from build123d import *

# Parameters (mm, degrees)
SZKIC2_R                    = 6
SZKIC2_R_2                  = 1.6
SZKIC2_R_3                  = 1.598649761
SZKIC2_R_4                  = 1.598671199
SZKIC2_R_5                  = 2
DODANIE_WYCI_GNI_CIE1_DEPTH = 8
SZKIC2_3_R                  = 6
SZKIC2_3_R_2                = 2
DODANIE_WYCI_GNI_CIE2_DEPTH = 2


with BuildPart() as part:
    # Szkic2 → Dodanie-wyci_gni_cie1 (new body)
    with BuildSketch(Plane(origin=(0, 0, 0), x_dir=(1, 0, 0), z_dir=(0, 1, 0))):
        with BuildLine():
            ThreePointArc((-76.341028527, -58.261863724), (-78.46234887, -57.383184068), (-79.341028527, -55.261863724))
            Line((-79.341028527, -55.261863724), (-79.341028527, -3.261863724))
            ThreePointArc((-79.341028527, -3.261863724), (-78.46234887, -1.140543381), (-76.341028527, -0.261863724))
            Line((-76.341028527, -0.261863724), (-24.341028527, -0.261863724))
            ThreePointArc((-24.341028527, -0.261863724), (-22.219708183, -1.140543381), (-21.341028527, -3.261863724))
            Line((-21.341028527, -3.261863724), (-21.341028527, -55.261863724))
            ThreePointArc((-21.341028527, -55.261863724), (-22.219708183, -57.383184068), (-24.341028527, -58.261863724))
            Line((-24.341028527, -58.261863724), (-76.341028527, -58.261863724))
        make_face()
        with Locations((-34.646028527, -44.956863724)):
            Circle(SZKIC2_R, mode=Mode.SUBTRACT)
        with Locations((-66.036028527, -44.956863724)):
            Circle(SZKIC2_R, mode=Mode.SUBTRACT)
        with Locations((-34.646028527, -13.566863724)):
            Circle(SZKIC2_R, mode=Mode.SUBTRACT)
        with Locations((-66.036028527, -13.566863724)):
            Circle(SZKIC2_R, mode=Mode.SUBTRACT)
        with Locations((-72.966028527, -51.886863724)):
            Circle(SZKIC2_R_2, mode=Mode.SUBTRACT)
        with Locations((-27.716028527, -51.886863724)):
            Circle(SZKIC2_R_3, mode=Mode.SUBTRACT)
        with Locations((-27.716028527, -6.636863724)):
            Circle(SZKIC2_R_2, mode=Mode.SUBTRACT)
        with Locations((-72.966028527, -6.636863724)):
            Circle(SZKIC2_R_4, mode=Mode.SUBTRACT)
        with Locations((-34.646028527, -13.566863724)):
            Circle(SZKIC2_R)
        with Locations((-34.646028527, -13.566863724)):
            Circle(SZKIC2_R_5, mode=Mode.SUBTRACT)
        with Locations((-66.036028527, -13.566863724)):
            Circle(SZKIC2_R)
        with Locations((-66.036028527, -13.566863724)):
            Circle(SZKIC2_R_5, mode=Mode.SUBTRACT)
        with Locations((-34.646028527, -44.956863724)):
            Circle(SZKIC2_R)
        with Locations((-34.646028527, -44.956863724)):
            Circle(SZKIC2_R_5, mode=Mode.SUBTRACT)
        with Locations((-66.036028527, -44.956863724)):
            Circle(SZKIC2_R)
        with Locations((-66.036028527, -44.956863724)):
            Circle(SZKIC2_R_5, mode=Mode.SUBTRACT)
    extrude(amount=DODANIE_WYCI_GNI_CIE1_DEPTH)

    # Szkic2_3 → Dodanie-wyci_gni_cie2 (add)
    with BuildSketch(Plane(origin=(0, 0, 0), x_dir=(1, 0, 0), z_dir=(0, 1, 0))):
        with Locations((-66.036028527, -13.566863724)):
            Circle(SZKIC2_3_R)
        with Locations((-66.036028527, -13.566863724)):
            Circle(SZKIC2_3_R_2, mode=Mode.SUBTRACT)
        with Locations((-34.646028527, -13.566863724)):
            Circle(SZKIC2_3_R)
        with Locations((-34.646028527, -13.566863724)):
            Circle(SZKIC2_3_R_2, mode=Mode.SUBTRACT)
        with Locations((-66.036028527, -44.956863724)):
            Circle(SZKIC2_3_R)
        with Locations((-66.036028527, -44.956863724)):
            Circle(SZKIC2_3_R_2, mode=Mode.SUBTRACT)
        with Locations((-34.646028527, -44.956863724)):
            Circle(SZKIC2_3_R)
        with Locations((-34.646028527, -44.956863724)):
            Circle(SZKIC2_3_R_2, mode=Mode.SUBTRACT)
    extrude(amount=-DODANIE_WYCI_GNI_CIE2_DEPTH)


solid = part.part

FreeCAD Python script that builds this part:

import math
import FreeCAD as App
import Part
import Sketcher
from FreeCAD import Vector
Q = App.Units.Quantity

doc = App.newDocument("Part")
body = doc.addObject("PartDesign::Body", "Body")

# Sketch on XZ plane
sketch1 = doc.addObject("Sketcher::SketchObject", "Sketch")
body.addObject(sketch1)
sketch1.AttachmentSupport = (doc.XZ_Plane, [""])
sketch1.MapMode = "FlatFace"
sketch1.addGeometry(Part.ArcOfCircle(Part.Circle(Vector(-76.3, 55.3, 0), Vector(0, 0, 1), 3), math.radians(90), math.radians(180)), False)
sketch1.addGeometry(Part.LineSegment(Vector(-76.3, 58.3, 0), Vector(-24.3, 58.3, 0)), False)
sketch1.addGeometry(Part.ArcOfCircle(Part.Circle(Vector(-24.3, 55.3, 0), Vector(0, 0, 1), 3), math.radians(0), math.radians(90)), False)
sketch1.addGeometry(Part.LineSegment(Vector(-21.3, 55.3, 0), Vector(-21.3, 3.3, 0)), False)
sketch1.addGeometry(Part.ArcOfCircle(Part.Circle(Vector(-24.3, 3.3, 0), Vector(0, 0, 1), 3), math.radians(-90), math.radians(0)), False)
sketch1.addGeometry(Part.LineSegment(Vector(-24.3, 0.3, 0), Vector(-76.3, 0.3, 0)), False)
sketch1.addGeometry(Part.ArcOfCircle(Part.Circle(Vector(-76.3, 3.3, 0), Vector(0, 0, 1), 3), math.radians(-180), math.radians(-90)), False)
sketch1.addGeometry(Part.LineSegment(Vector(-79.3, 3.3, 0), Vector(-79.3, 55.3, 0)), False)
sketch1.addGeometry(Part.Circle(Vector(-27.7, 51.9, 0), Vector(0, 0, 1), 1.6), False)
sketch1.addGeometry(Part.Circle(Vector(-34.6, 45, 0), Vector(0, 0, 1), 2), False)
sketch1.addGeometry(Part.Circle(Vector(-73, 51.9, 0), Vector(0, 0, 1), 1.6), False)
sketch1.addGeometry(Part.Circle(Vector(-66, 45, 0), Vector(0, 0, 1), 2), False)
sketch1.addGeometry(Part.Circle(Vector(-34.6, 13.6, 0), Vector(0, 0, 1), 2), False)
sketch1.addGeometry(Part.Circle(Vector(-27.7, 6.6, 0), Vector(0, 0, 1), 1.6), False)
sketch1.addGeometry(Part.Circle(Vector(-66, 13.6, 0), Vector(0, 0, 1), 2), False)
sketch1.addGeometry(Part.Circle(Vector(-73, 6.6, 0), Vector(0, 0, 1), 1.6), False)
sketch1.addConstraint(Sketcher.Constraint("Tangent", 0, 1, 1, 1))
sketch1.addConstraint(Sketcher.Constraint("Tangent", 1, 2, 2, 2))
sketch1.addConstraint(Sketcher.Constraint("Tangent", 2, 1, 3, 1))
sketch1.addConstraint(Sketcher.Constraint("Tangent", 3, 2, 4, 2))
sketch1.addConstraint(Sketcher.Constraint("Tangent", 4, 1, 5, 1))
sketch1.addConstraint(Sketcher.Constraint("Tangent", 5, 2, 6, 2))
sketch1.addConstraint(Sketcher.Constraint("Tangent", 6, 1, 7, 1))
sketch1.addConstraint(Sketcher.Constraint("Tangent", 7, 2, 0, 2))
sketch1.addConstraint(Sketcher.Constraint("Horizontal", 1))
sketch1.addConstraint(Sketcher.Constraint("Vertical", 3))
sketch1.addConstraint(Sketcher.Constraint("Horizontal", 5))
sketch1.addConstraint(Sketcher.Constraint("Vertical", 7))
sketch1.addConstraint(Sketcher.Constraint("Equal", 0, 2))
sketch1.addConstraint(Sketcher.Constraint("Equal", 2, 4))
sketch1.addConstraint(Sketcher.Constraint("Equal", 4, 6))
sketch1.addConstraint(Sketcher.Constraint("Equal", 9, 11))
sketch1.addConstraint(Sketcher.Constraint("Equal", 11, 12))
sketch1.addConstraint(Sketcher.Constraint("Equal", 10, 13))
sketch1.addConstraint(Sketcher.Constraint("Equal", 12, 14))
sketch1.addConstraint(Sketcher.Constraint("Horizontal", 8, 3, 10, 3))
sketch1.addConstraint(Sketcher.Constraint("Horizontal", 9, 3, 11, 3))
sketch1.addConstraint(Sketcher.Constraint("Horizontal", 12, 3, 14, 3))
sketch1.addConstraint(Sketcher.Constraint("Horizontal", 13, 3, 15, 3))
sketch1.addConstraint(Sketcher.Constraint("Vertical", 9, 3, 12, 3))
sketch1.addConstraint(Sketcher.Constraint("Vertical", 8, 3, 13, 3))
sketch1.addConstraint(Sketcher.Constraint("Vertical", 11, 3, 14, 3))
sketch1.addConstraint(Sketcher.Constraint("Vertical", 10, 3, 15, 3))
sketch1.addConstraint(Sketcher.Constraint("Equal", 5, 3))
sketch1.addConstraint(Sketcher.Constraint("Diameter", 9, Q("4 mm")))
sketch1.addConstraint(Sketcher.Constraint("Radius", 0, Q("3 mm")))
sketch1.addConstraint(Sketcher.Constraint("Diameter", 10, Q("3.2 mm")))
sketch1.addConstraint(Sketcher.Constraint("DistanceX", 1, 1, 1, 2, Q("52 mm")))
sketch1.addConstraint(Sketcher.Constraint("Diameter", 8, Q("3.1973 mm")))
sketch1.addConstraint(Sketcher.Constraint("DistanceX", 9, 3, 8, 3, Q("6.93 mm")))
sketch1.addConstraint(Sketcher.Constraint("DistanceY", 9, 3, 8, 3, Q("6.93 mm")))
sketch1.addConstraint(Sketcher.Constraint("DistanceX", 10, 3, 9, 3, Q("38.32 mm")))
sketch1.addConstraint(Sketcher.Constraint("DistanceX", 10, 3, 11, 3, Q("6.93 mm")))
sketch1.addConstraint(Sketcher.Constraint("DistanceY", 12, 3, 9, 3, Q("31.39 mm")))
sketch1.addConstraint(Sketcher.Constraint("DistanceY", 13, 3, 12, 3, Q("6.93 mm")))
sketch1.addConstraint(Sketcher.Constraint("Diameter", 15, Q("3.197342 mm")))
sketch1.addConstraint(Sketcher.Constraint("DistanceX", 8, 3, 2, 3, Q("3.375 mm")))
sketch1.addConstraint(Sketcher.Constraint("DistanceY", 8, 3, 2, 3, Q("3.375 mm")))
sketch1.addConstraint(Sketcher.Constraint("DistanceX", 0, 3, -1, 1, Q("76.341029 mm")))
sketch1.addConstraint(Sketcher.Constraint("DistanceY", -1, 1, 0, 3, Q("55.261864 mm")))
pad1 = doc.addObject("PartDesign::Pad", "Pad")
body.addObject(pad1)
pad1.Profile = sketch1
pad1.Length = 8
pad1.Reversed = True

# Sketch on XZ plane
sketch2 = doc.addObject("Sketcher::SketchObject", "Sketch001")
body.addObject(sketch2)
sketch2.AttachmentSupport = (doc.XZ_Plane, [""])
sketch2.MapMode = "FlatFace"
sketch2.addGeometry(Part.Circle(Vector(-66, 13.6, 0), Vector(0, 0, 1), 6), False)
sketch2.addGeometry(Part.Circle(Vector(-66, 13.6, 0), Vector(0, 0, 1), 2), False)
sketch2.addGeometry(Part.Circle(Vector(-34.6, 13.6, 0), Vector(0, 0, 1), 6), False)
sketch2.addGeometry(Part.Circle(Vector(-34.6, 13.6, 0), Vector(0, 0, 1), 2), False)
sketch2.addGeometry(Part.Circle(Vector(-66, 45, 0), Vector(0, 0, 1), 6), False)
sketch2.addGeometry(Part.Circle(Vector(-66, 45, 0), Vector(0, 0, 1), 2), False)
sketch2.addGeometry(Part.Circle(Vector(-34.6, 45, 0), Vector(0, 0, 1), 6), False)
sketch2.addGeometry(Part.Circle(Vector(-34.6, 45, 0), Vector(0, 0, 1), 2), False)
sketch2.addConstraint(Sketcher.Constraint("Coincident", 1, 3, 0, 3))
sketch2.addConstraint(Sketcher.Constraint("Coincident", 3, 3, 2, 3))
sketch2.addConstraint(Sketcher.Constraint("Coincident", 5, 3, 4, 3))
sketch2.addConstraint(Sketcher.Constraint("Coincident", 7, 3, 6, 3))
sketch2.addConstraint(Sketcher.Constraint("Equal", 0, 2))
sketch2.addConstraint(Sketcher.Constraint("Equal", 1, 3))
sketch2.addConstraint(Sketcher.Constraint("Equal", 2, 4))
sketch2.addConstraint(Sketcher.Constraint("Equal", 3, 5))
sketch2.addConstraint(Sketcher.Constraint("Equal", 4, 6))
sketch2.addConstraint(Sketcher.Constraint("Equal", 5, 7))
sketch2.addConstraint(Sketcher.Constraint("Horizontal", 1, 3, 2, 3))
sketch2.addConstraint(Sketcher.Constraint("Horizontal", 5, 3, 6, 3))
sketch2.addConstraint(Sketcher.Constraint("Vertical", 1, 3, 4, 3))
sketch2.addConstraint(Sketcher.Constraint("Vertical", 3, 3, 6, 3))
sketch2.addConstraint(Sketcher.Constraint("Diameter", 0, Q("12 mm")))
sketch2.addConstraint(Sketcher.Constraint("Diameter", 1, Q("4 mm")))
sketch2.addConstraint(Sketcher.Constraint("DistanceX", 0, 3, 2, 3, Q("31.39 mm")))
sketch2.addConstraint(Sketcher.Constraint("DistanceY", 0, 3, 4, 3, Q("31.39 mm")))
sketch2.addConstraint(Sketcher.Constraint("DistanceX", 0, 3, -1, 1, Q("66.036029 mm")))
sketch2.addConstraint(Sketcher.Constraint("DistanceY", -1, 1, 0, 3, Q("13.566864 mm")))
pad2 = doc.addObject("PartDesign::Pad", "Pad001")
body.addObject(pad2)
pad2.Profile = sketch2
pad2.Length = 2

doc.recompute()
